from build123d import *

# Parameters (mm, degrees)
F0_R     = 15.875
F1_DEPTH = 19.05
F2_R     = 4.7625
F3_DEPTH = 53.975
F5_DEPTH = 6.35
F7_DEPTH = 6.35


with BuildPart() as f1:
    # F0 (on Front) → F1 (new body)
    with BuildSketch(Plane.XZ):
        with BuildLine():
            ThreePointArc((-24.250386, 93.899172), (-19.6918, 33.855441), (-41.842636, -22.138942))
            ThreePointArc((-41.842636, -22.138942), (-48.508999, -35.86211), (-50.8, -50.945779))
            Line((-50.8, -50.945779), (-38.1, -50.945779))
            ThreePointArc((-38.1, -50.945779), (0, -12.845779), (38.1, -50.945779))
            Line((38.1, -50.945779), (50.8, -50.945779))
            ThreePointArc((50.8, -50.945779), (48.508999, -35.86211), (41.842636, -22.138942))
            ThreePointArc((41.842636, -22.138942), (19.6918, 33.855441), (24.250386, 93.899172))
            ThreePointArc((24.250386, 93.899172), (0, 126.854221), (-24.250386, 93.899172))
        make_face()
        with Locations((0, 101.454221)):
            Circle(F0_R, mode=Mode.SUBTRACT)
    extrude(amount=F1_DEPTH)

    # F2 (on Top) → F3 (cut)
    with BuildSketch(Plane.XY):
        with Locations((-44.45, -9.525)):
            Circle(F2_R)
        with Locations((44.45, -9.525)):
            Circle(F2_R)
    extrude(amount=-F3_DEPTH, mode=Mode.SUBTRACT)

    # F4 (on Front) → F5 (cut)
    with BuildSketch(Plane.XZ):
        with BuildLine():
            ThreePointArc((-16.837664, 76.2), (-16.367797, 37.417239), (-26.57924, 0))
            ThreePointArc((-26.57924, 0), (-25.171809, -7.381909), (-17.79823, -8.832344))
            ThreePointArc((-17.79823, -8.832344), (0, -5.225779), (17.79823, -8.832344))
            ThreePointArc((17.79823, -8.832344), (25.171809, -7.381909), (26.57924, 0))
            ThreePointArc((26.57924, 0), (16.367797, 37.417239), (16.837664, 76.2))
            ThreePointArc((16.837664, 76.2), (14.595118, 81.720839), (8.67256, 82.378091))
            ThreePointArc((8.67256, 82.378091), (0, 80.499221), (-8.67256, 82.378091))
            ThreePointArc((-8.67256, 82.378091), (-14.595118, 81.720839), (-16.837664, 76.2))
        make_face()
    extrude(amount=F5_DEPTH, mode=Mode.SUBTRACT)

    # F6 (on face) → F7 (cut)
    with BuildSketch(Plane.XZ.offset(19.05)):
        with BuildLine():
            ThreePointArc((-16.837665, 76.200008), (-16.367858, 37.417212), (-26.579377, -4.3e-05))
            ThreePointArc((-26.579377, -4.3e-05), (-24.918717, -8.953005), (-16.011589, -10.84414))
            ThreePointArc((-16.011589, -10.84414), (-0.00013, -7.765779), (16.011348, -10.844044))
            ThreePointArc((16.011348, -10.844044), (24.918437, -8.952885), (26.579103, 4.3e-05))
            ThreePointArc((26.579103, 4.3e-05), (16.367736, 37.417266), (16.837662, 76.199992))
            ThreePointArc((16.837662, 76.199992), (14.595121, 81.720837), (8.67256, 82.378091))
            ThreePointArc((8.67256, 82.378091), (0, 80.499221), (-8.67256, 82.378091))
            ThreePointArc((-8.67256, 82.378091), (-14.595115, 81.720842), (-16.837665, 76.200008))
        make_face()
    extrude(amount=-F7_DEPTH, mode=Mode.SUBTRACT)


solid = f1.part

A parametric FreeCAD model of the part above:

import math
import FreeCAD as App
import Part
import Sketcher
from FreeCAD import Vector
Q = App.Units.Quantity

doc = App.newDocument("Part")
params = doc.addObject("Spreadsheet::Sheet", "Params")
for row, (alias, value) in enumerate([
    ("sketch1_radius", "1 in"),
    ("sketch1_radius2", "1.5 in"),
    ("sketch1_diameter", "1.25 in"),
    ("sketch1_width", "0.5 in"),
    ("pad1_length", "0.75 in"),
    ("sketch2_diameter", "0.375 in"),
    ("pocket1_length", "2.125 in"),
    ("sketch3_radius", "1.8 in"),
    ("sketch3_radius2", "0.8250001 in"),
    ("pocket2_length", "0.25 in"),
    ("sketch4_radius", "1.7000002 in"),
    ("sketch4_radius2", "0.8250001 in"),
    ("pocket3_length", "0.25 in"),
], start=1):
    params.set(f"A{row}", alias)
    params.set(f"B{row}", "=" + value)
    params.setAlias(f"B{row}", alias)

body = doc.addObject("PartDesign::Body", "Body")

# Sketch on XZ plane
sketch1 = body.newObject("Sketcher::SketchObject", "Sketch")
sketch1.AttachmentSupport = (doc.getObject("XZ_Plane"), [""])
sketch1.MapMode = "FlatFace"
sketch1.addGeometry([
    Part.ArcOfCircle(Part.Circle(Vector(-152, 54, 0), Vector(0, 0, 1), 134), math.radians(-35), math.radians(17)),  # 0
    Part.ArcOfCircle(Part.Circle(Vector(0, -51, 0), Vector(0, 0, 1), 51), math.radians(145), math.radians(180)),  # 1
    Part.LineSegment(Vector(-51, -51, 0), Vector(-38, -51, 0)),  # 2
    Part.ArcOfCircle(Part.Circle(Vector(0, -51, 0), Vector(0, 0, 1), 38), math.radians(0), math.radians(180)),  # 3
    Part.LineSegment(Vector(38, -51, 0), Vector(51, -51, 0)),  # 4
    Part.ArcOfCircle(Part.Circle(Vector(0, -51, 0), Vector(0, 0, 1), 51), math.radians(0), math.radians(35)),  # 5
    Part.ArcOfCircle(Part.Circle(Vector(152, 54, 0), Vector(0, 0, 1), 134), math.radians(163), math.radians(215)),  # 6
    Part.ArcOfCircle(Part.Circle(Vector(0, 101, 0), Vector(0, 0, 1), 25), math.radians(-17), math.radians(197)),  # 7
    Part.Circle(Vector(0, 101, 0), Vector(0, 0, 1), 16),  # 8
], False)
sketch1.addConstraint([
    Sketcher.Constraint("Tangent", 0, 1, 1, 1),
    Sketcher.Constraint("Coincident", 1, 2, 2, 1),
    Sketcher.Constraint("Coincident", 2, 2, 3, 2),
    Sketcher.Constraint("Coincident", 3, 1, 4, 1),
    Sketcher.Constraint("Coincident", 4, 2, 5, 1),
    Sketcher.Constraint("Tangent", 5, 2, 6, 2),
    Sketcher.Constraint("Tangent", 6, 1, 7, 1),
    Sketcher.Constraint("Tangent", 7, 2, 0, 2),
    Sketcher.Constraint("Horizontal", 2),
    Sketcher.Constraint("Horizontal", 4),
    Sketcher.Constraint("Coincident", 3, 3, 1, 3),
    Sketcher.Constraint("Coincident", 5, 3, 3, 3),
    Sketcher.Constraint("Coincident", 8, 3, 7, 3),
    Sketcher.Constraint("Equal", 1, 5),
    Sketcher.Constraint("Equal", 0, 6),
    Sketcher.Constraint("Symmetric", 0, 3, 6, 3, -2),
    Sketcher.Constraint("Horizontal", 3, 3, 1, 2),
    Sketcher.Constraint("Horizontal", 2, 2, 3, 1),
    Sketcher.Constraint("Radius", 7, Q("1 in")),
    Sketcher.Constraint("Radius", 3, Q("1.5 in")),
    Sketcher.Constraint("Diameter", 8, Q("1.25 in")),
    Sketcher.Constraint("DistanceX", 2, 1, 2, 2, Q("0.5 in")),
    Sketcher.Constraint("DistanceX", 0, 3, -1, 1, Q("6 in")),
    Sketcher.Constraint("DistanceY", 1, 3, 7, 3, Q("5.9999999 in")),
    Sketcher.Constraint("DistanceY", -1, 1, 0, 3, Q("2.125 in")),
])
sketch1.setExpression("Constraints[18]", "Params.sketch1_radius")
sketch1.setExpression("Constraints[19]", "Params.sketch1_radius2")
sketch1.setExpression("Constraints[20]", "Params.sketch1_diameter")
sketch1.setExpression("Constraints[21]", "Params.sketch1_width")
pad1 = body.newObject("PartDesign::Pad", "Pad")
pad1.Profile = sketch1
pad1.setExpression("Length", "Params.pad1_length")

# Sketch on XY plane
sketch2 = body.newObject("Sketcher::SketchObject", "Sketch001")
sketch2.AttachmentSupport = (doc.getObject("XY_Plane"), [""])
sketch2.MapMode = "FlatFace"
sketch2.addGeometry([
    Part.Circle(Vector(-44.5, -9.5, 0), Vector(0, 0, 1), 4.8),
    Part.Circle(Vector(44.5, -9.5, 0), Vector(0, 0, 1), 4.8),
], False)
sketch2.addConstraint([
    Sketcher.Constraint("Equal", 0, 1),
    Sketcher.Constraint("Symmetric", 0, 3, 1, 3, -2),
    Sketcher.Constraint("Diameter", 0, Q("0.375 in")),
    Sketcher.Constraint("DistanceX", 0, 3, 1, 3, Q("3.5 in")),
    Sketcher.Constraint("DistanceY", 0, 3, -1, 1, Q("0.375 in")),
])
sketch2.setExpression("Constraints[2]", "Params.sketch2_diameter")
pocket1 = body.newObject("PartDesign::Pocket", "Pocket")
pocket1.Profile = sketch2
pocket1.setExpression("Length", "Params.pocket1_length")

# Sketch on XZ plane
sketch3 = body.newObject("Sketcher::SketchObject", "Sketch002")
sketch3.AttachmentSupport = (doc.getObject("XZ_Plane"), [""])
sketch3.MapMode = "FlatFace"
sketch3.addGeometry([
    Part.ArcOfCircle(Part.Circle(Vector(-155, 55, 0), Vector(0, 0, 1), 140), math.radians(-23), math.radians(9)),  # 0
    Part.ArcOfCircle(Part.Circle(Vector(-20, -3, 0), Vector(0, 0, 1), 7), math.radians(157), math.radians(293)),  # 1
    Part.ArcOfCircle(Part.Circle(Vector(0, -51, 0), Vector(0, 0, 1), 46), math.radians(67), math.radians(113)),  # 2
    Part.ArcOfCircle(Part.Circle(Vector(20, -3, 0), Vector(0, 0, 1), 7), math.radians(-113), math.radians(23)),  # 3
    Part.ArcOfCircle(Part.Circle(Vector(155, 55, 0), Vector(0, 0, 1), 140), math.radians(171), math.radians(203)),  # 4
    Part.ArcOfCircle(Part.Circle(Vector(11, 77, 0), Vector(0, 0, 1), 6), math.radians(-9), math.radians(114)),  # 5
    Part.ArcOfCircle(Part.Circle(Vector(0, 101, 0), Vector(0, 0, 1), 21), math.radians(-114), math.radians(-66)),  # 6
    Part.ArcOfCircle(Part.Circle(Vector(-11, 77, 0), Vector(0, 0, 1), 6), math.radians(66), math.radians(189)),  # 7
], False)
sketch3.addConstraint([
    Sketcher.Constraint("Tangent", 0, 1, 1, 1),
    Sketcher.Constraint("Tangent", 1, 2, 2, 2),
    Sketcher.Constraint("Tangent", 2, 1, 3, 1),
    Sketcher.Constraint("Tangent", 3, 2, 4, 2),
    Sketcher.Constraint("Tangent", 4, 1, 5, 1),
    Sketcher.Constraint("Tangent", 5, 2, 6, 2),
    Sketcher.Constraint("Tangent", 6, 1, 7, 1),
    Sketcher.Constraint("Tangent", 7, 2, 0, 2),
    Sketcher.Constraint("Equal", 1, 3),
    Sketcher.Constraint("Equal", 0, 4),
    Sketcher.Constraint("Equal", 5, 7),
    Sketcher.Constraint("Symmetric", 0, 1, 3, 2, -1, 1),
    Sketcher.Constraint("Symmetric", 1, 3, 3, 3, -2),
    Sketcher.Constraint("PointOnObject", 6, 3, -2),
    Sketcher.Constraint("Radius", 2, Q("1.8 in")),
    Sketcher.Constraint("DistanceY", -1, 1, 4, 1, Q("3 in")),
    Sketcher.Constraint("Radius", 6, Q("0.8250001 in")),
    Sketcher.Constraint("DistanceY", 2, 3, 6, 3, Q("6.0000001 in")),
    Sketcher.Constraint("Radius", 1, Q("6.712699 mm")),
    Sketcher.Constraint("DistanceX", -1, 1, 4, 1, Q("0.6629002 in")),
    Sketcher.Constraint("Radius", 0, Q("139.699994 mm")),
    Sketcher.Constraint("Radius", 5, Q("5.822114 mm")),
])
sketch3.setExpression("Constraints[14]", "Params.sketch3_radius")
sketch3.setExpression("Constraints[16]", "Params.sketch3_radius2")
pocket2 = body.newObject("PartDesign::Pocket", "Pocket001")
pocket2.Profile = sketch3
pocket2.setExpression("Length", "Params.pocket2_length")
pocket2.Reversed = True

# Sketch on XZ plane
sketch4 = body.newObject("Sketcher::SketchObject", "Sketch003")
sketch4.AttachmentSupport = (doc.getObject("XZ_Plane"), [""])
sketch4.MapMode = "FlatFace"
sketch4.AttachmentOffset = App.Placement(Vector(0, 0, 0.75 * 25.4), App.Rotation())
sketch4.addGeometry([
    Part.ArcOfCircle(Part.Circle(Vector(-155, 55, 0), Vector(0, 0, 1), 140), math.radians(-23), math.radians(9)),  # 0
    Part.ArcOfCircle(Part.Circle(Vector(-19, -3, 0), Vector(0, 0, 1), 8), math.radians(157), math.radians(292)),  # 1
    Part.ArcOfCircle(Part.Circle(Vector(0, -51, 0), Vector(0, 0, 1), 43), math.radians(68), math.radians(112)),  # 2
    Part.ArcOfCircle(Part.Circle(Vector(19, -3, 0), Vector(0, 0, 1), 8), math.radians(-112), math.radians(23)),  # 3
    Part.ArcOfCircle(Part.Circle(Vector(155, 55, 0), Vector(0, 0, 1), 140), math.radians(171), math.radians(203)),  # 4
    Part.ArcOfCircle(Part.Circle(Vector(11, 77, 0), Vector(0, 0, 1), 6), math.radians(-9), math.radians(114)),  # 5
    Part.ArcOfCircle(Part.Circle(Vector(0, 101, 0), Vector(0, 0, 1), 21), math.radians(-114), math.radians(-66)),  # 6
    Part.ArcOfCircle(Part.Circle(Vector(-11, 77, 0), Vector(0, 0, 1), 6), math.radians(66), math.radians(189)),  # 7
], False)
sketch4.addConstraint([
    Sketcher.Constraint("Tangent", 0, 1, 1, 1),
    Sketcher.Constraint("Tangent", 1, 2, 2, 2),
    Sketcher.Constraint("Tangent", 2, 1, 3, 1),
    Sketcher.Constraint("Tangent", 3, 2, 4, 2),
    Sketcher.Constraint("Tangent", 4, 1, 5, 1),
    Sketcher.Constraint("Tangent", 5, 2, 6, 2),
    Sketcher.Constraint("Tangent", 6, 1, 7, 1),
    Sketcher.Constraint("Tangent", 7, 2, 0, 2),
    Sketcher.Constraint("Equal", 1, 3),
    Sketcher.Constraint("Equal", 5, 7),
    Sketcher.Constraint("Symmetric", 5, 3, 7, 3, -2),
    Sketcher.Constraint("PointOnObject", 2, 3, -2),
    Sketcher.Constraint("Radius", 2, Q("1.7000002 in")),
    Sketcher.Constraint("Radius", 6, Q("0.8250001 in")),
    Sketcher.Constraint("DistanceX", 1, 3, 3, 3, Q("1.5 in")),
    Sketcher.Constraint("DistanceX", 0, 3, 4, 3, Q("12.2000001 in")),
    Sketcher.Constraint("Radius", 0, Q("139.700008 mm")),
    Sketcher.Constraint("DistanceX", -1, 1, 4, 1, Q("0.6629001 in")),
    Sketcher.Constraint("DistanceX", 7, 2, -1, 1, Q("0.6629002 in")),
    Sketcher.Constraint("Radius", 1, Q("8.194364 mm")),
    Sketcher.Constraint("Radius", 4, Q("139.699993 mm")),
    Sketcher.Constraint("Radius", 5, Q("5.822113 mm")),
    Sketcher.Constraint("DistanceY", -1, 1, 5, 3, Q("77.078001 mm")),
])
sketch4.setExpression("Constraints[12]", "Params.sketch4_radius")
sketch4.setExpression("Constraints[13]", "Params.sketch4_radius2")
pocket3 = body.newObject("PartDesign::Pocket", "Pocket002")
pocket3.Profile = sketch4
pocket3.setExpression("Length", "Params.pocket3_length")

doc.recompute()
